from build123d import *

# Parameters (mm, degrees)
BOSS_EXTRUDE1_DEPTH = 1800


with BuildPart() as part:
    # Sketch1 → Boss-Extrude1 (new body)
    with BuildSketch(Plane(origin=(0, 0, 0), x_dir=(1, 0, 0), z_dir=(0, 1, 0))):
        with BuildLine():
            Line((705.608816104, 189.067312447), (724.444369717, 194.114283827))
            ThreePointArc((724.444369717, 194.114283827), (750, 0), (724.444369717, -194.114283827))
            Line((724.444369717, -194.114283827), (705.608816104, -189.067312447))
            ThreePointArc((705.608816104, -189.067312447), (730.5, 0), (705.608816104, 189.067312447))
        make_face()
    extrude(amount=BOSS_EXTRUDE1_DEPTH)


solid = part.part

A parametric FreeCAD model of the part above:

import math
import FreeCAD as App
import Part
import Sketcher
from FreeCAD import Vector
Q = App.Units.Quantity

doc = App.newDocument("Part")
params = doc.addObject("Spreadsheet::Sheet", "Params")
for row, (alias, value) in enumerate([
    ("sketch1_radius", "750 mm"),
    ("sketch1_radius2", "730.5 mm"),
    ("pad1_length", "1800 mm"),
], start=1):
    params.set(f"A{row}", alias)
    params.set(f"B{row}", "=" + value)
    params.setAlias(f"B{row}", alias)

body = doc.addObject("PartDesign::Body", "Body")

# Sketch on XZ plane
sketch1 = body.newObject("Sketcher::SketchObject", "Sketch")
sketch1.AttachmentSupport = (doc.getObject("XZ_Plane"), [""])
sketch1.MapMode = "FlatFace"
sketch1.addGeometry([
    Part.LineSegment(Vector(724, -194, 0), Vector(706, -189, 0)),
    Part.ArcOfCircle(Part.Circle(Vector(0, 0, 0), Vector(0, 0, 1), 730), math.radians(-15), math.radians(15)),
    Part.LineSegment(Vector(706, 189, 0), Vector(724, 194, 0)),
    Part.ArcOfCircle(Part.Circle(Vector(0, 0, 0), Vector(0, 0, 1), 750), math.radians(-15), math.radians(15)),
], False)
sketch1.addConstraint([
    Sketcher.Constraint("Coincident", 0, 2, 1, 1),
    Sketcher.Constraint("Coincident", 1, 2, 2, 1),
    Sketcher.Constraint("Coincident", 2, 2, 3, 2),
    Sketcher.Constraint("Coincident", 3, 1, 0, 1),
    Sketcher.Constraint("Coincident", 1, 3, -1, 1),
    Sketcher.Constraint("Coincident", 3, 3, -1, 1),
    Sketcher.Constraint("Radius", 3, 750.0),
    Sketcher.Constraint("Radius", 1, 730.5),
    Sketcher.Constraint("Angle", 0, Q("165 deg")),
    Sketcher.Constraint("Angle", 2, Q("15 deg")),
    Sketcher.Constraint("DistanceX", -1, 1, 2, 2, 724.44437),
    Sketcher.Constraint("DistanceX", -1, 1, 0, 2, 705.608816),
])
sketch1.setExpression("Constraints[6]", "Params.sketch1_radius")
sketch1.setExpression("Constraints[7]", "Params.sketch1_radius2")
pad1 = body.newObject("PartDesign::Pad", "Pad")
pad1.Profile = sketch1
pad1.setExpression("Length", "Params.pad1_length")
pad1.Reversed = True

doc.recompute()
